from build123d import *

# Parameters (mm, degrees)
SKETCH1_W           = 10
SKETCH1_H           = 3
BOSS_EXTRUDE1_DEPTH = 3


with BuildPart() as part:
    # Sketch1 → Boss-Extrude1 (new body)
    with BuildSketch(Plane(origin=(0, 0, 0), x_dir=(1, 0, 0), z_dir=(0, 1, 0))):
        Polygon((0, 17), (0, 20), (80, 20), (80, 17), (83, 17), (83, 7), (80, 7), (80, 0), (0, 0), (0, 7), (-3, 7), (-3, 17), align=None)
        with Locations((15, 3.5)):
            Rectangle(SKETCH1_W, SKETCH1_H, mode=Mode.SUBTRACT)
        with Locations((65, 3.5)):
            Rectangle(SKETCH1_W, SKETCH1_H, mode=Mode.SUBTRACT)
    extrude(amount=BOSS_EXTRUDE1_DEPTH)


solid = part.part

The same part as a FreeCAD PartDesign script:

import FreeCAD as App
import Part
import Sketcher
Q = App.Units.Quantity

doc = App.newDocument("Part")
body = doc.addObject("PartDesign::Body", "Body")

# Sketch on XZ plane
sketch1 = body.newObject("Sketcher::SketchObject", "Sketch")
sketch1.AttachmentSupport = (doc.getObject("XZ_Plane"), [""])
sketch1.MapMode = "FlatFace"
sketch1.addGeometry(Part.LineSegment(App.Vector(0, -20, 0), App.Vector(0, -17, 0)), False)
sketch1.addGeometry(Part.LineSegment(App.Vector(0, -17, 0), App.Vector(-3, -17, 0)), False)
sketch1.addGeometry(Part.LineSegment(App.Vector(-3, -17, 0), App.Vector(-3, -7, 0)), False)
sketch1.addGeometry(Part.LineSegment(App.Vector(-3, -7, 0), App.Vector(0, -7, 0)), False)
sketch1.addGeometry(Part.LineSegment(App.Vector(0, -7, 0), App.Vector(0, 0, 0)), False)
sketch1.addGeometry(Part.LineSegment(App.Vector(0, 0, 0), App.Vector(80, 0, 0)), False)
sketch1.addGeometry(Part.LineSegment(App.Vector(80, 0, 0), App.Vector(80, -7, 0)), False)
sketch1.addGeometry(Part.LineSegment(App.Vector(80, -7, 0), App.Vector(83, -7, 0)), False)
sketch1.addGeometry(Part.LineSegment(App.Vector(83, -7, 0), App.Vector(83, -17, 0)), False)
sketch1.addGeometry(Part.LineSegment(App.Vector(83, -17, 0), App.Vector(80, -17, 0)), False)
sketch1.addGeometry(Part.LineSegment(App.Vector(80, -17, 0), App.Vector(80, -20, 0)), False)
sketch1.addGeometry(Part.LineSegment(App.Vector(80, -20, 0), App.Vector(0, -20, 0)), False)
sketch1.addGeometry(Part.LineSegment(App.Vector(60, -2, 0), App.Vector(60, -5, 0)), False)
sketch1.addGeometry(Part.LineSegment(App.Vector(60, -5, 0), App.Vector(70, -5, 0)), False)
sketch1.addGeometry(Part.LineSegment(App.Vector(70, -5, 0), App.Vector(70, -2, 0)), False)
sketch1.addGeometry(Part.LineSegment(App.Vector(70, -2, 0), App.Vector(60, -2, 0)), False)
sketch1.addGeometry(Part.LineSegment(App.Vector(10, -2, 0), App.Vector(10, -5, 0)), False)
sketch1.addGeometry(Part.LineSegment(App.Vector(10, -5, 0), App.Vector(20, -5, 0)), False)
sketch1.addGeometry(Part.LineSegment(App.Vector(20, -5, 0), App.Vector(20, -2, 0)), False)
sketch1.addGeometry(Part.LineSegment(App.Vector(20, -2, 0), App.Vector(10, -2, 0)), False)
sketch1.addConstraint(Sketcher.Constraint("Coincident", 0, 2, 1, 1))
sketch1.addConstraint(Sketcher.Constraint("Coincident", 1, 2, 2, 1))
sketch1.addConstraint(Sketcher.Constraint("Coincident", 2, 2, 3, 1))
sketch1.addConstraint(Sketcher.Constraint("Coincident", 3, 2, 4, 1))
sketch1.addConstraint(Sketcher.Constraint("Coincident", 4, 2, 5, 1))
sketch1.addConstraint(Sketcher.Constraint("Coincident", 5, 2, 6, 1))
sketch1.addConstraint(Sketcher.Constraint("Coincident", 6, 2, 7, 1))
sketch1.addConstraint(Sketcher.Constraint("Coincident", 7, 2, 8, 1))
sketch1.addConstraint(Sketcher.Constraint("Coincident", 8, 2, 9, 1))
sketch1.addConstraint(Sketcher.Constraint("Coincident", 9, 2, 10, 1))
sketch1.addConstraint(Sketcher.Constraint("Coincident", 10, 2, 11, 1))
sketch1.addConstraint(Sketcher.Constraint("Coincident", 11, 2, 0, 1))
sketch1.addConstraint(Sketcher.Constraint("Coincident", 12, 2, 13, 1))
sketch1.addConstraint(Sketcher.Constraint("Coincident", 13, 2, 14, 1))
sketch1.addConstraint(Sketcher.Constraint("Coincident", 14, 2, 15, 1))
sketch1.addConstraint(Sketcher.Constraint("Coincident", 15, 2, 12, 1))
sketch1.addConstraint(Sketcher.Constraint("Coincident", 16, 2, 17, 1))
sketch1.addConstraint(Sketcher.Constraint("Coincident", 17, 2, 18, 1))
sketch1.addConstraint(Sketcher.Constraint("Coincident", 18, 2, 19, 1))
sketch1.addConstraint(Sketcher.Constraint("Coincident", 19, 2, 16, 1))
sketch1.addConstraint(Sketcher.Constraint("Vertical", 0))
sketch1.addConstraint(Sketcher.Constraint("Horizontal", 1))
sketch1.addConstraint(Sketcher.Constraint("Vertical", 2))
sketch1.addConstraint(Sketcher.Constraint("Horizontal", 3))
sketch1.addConstraint(Sketcher.Constraint("Vertical", 4))
sketch1.addConstraint(Sketcher.Constraint("Horizontal", 5))
sketch1.addConstraint(Sketcher.Constraint("Vertical", 6))
sketch1.addConstraint(Sketcher.Constraint("Horizontal", 7))
sketch1.addConstraint(Sketcher.Constraint("Vertical", 8))
sketch1.addConstraint(Sketcher.Constraint("Horizontal", 9))
sketch1.addConstraint(Sketcher.Constraint("Vertical", 10))
sketch1.addConstraint(Sketcher.Constraint("Horizontal", 11))
sketch1.addConstraint(Sketcher.Constraint("Vertical", 12))
sketch1.addConstraint(Sketcher.Constraint("Horizontal", 13))
sketch1.addConstraint(Sketcher.Constraint("Vertical", 14))
sketch1.addConstraint(Sketcher.Constraint("Horizontal", 15))
sketch1.addConstraint(Sketcher.Constraint("Vertical", 16))
sketch1.addConstraint(Sketcher.Constraint("Horizontal", 17))
sketch1.addConstraint(Sketcher.Constraint("Vertical", 18))
sketch1.addConstraint(Sketcher.Constraint("Horizontal", 19))
sketch1.addConstraint(Sketcher.Constraint("Coincident", 4, 2, -1, 1))
sketch1.addConstraint(Sketcher.Constraint("PointOnObject", 0, 2, -2))
sketch1.addConstraint(Sketcher.Constraint("Horizontal", 3, 2, 6, 2))
sketch1.addConstraint(Sketcher.Constraint("Horizontal", 1, 2, 8, 2))
sketch1.addConstraint(Sketcher.Constraint("Horizontal", 13, 2, 16, 2))
sketch1.addConstraint(Sketcher.Constraint("Horizontal", 15, 2, 18, 2))
sketch1.addConstraint(Sketcher.Constraint("Vertical", 6, 2, 9, 2))
sketch1.addConstraint(Sketcher.Constraint("Equal", 3, 7))
sketch1.addConstraint(Sketcher.Constraint("Equal", 15, 17))
sketch1.addConstraint(Sketcher.Constraint("Equal", 9, 0))
sketch1.addConstraint(Sketcher.Constraint("Equal", 19, 2))
sketch1.addConstraint(Sketcher.Constraint("Equal", 10, 12))
sketch1.addConstraint(Sketcher.Constraint("DistanceX", 1, 2, 1, 1, Q("3 mm")))
sketch1.addConstraint(Sketcher.Constraint("DistanceX", 5, 1, 5, 2, Q("80 mm")))
sketch1.addConstraint(Sketcher.Constraint("DistanceX", 13, 1, 13, 2, Q("10 mm")))
sketch1.addConstraint(Sketcher.Constraint("DistanceY", 4, 1, 4, 2, Q("7 mm")))
sketch1.addConstraint(Sketcher.Constraint("DistanceX", -1, 1, 12, 2, Q("60 mm")))
sketch1.addConstraint(Sketcher.Constraint("DistanceY", 12, 2, -1, 1, Q("5 mm")))
sketch1.addConstraint(Sketcher.Constraint("DistanceX", -1, 1, 16, 2, Q("10 mm")))
pad1 = body.newObject("PartDesign::Pad", "Pad")
pad1.Profile = sketch1
pad1.Length = 3
pad1.Reversed = True

doc.recompute()
